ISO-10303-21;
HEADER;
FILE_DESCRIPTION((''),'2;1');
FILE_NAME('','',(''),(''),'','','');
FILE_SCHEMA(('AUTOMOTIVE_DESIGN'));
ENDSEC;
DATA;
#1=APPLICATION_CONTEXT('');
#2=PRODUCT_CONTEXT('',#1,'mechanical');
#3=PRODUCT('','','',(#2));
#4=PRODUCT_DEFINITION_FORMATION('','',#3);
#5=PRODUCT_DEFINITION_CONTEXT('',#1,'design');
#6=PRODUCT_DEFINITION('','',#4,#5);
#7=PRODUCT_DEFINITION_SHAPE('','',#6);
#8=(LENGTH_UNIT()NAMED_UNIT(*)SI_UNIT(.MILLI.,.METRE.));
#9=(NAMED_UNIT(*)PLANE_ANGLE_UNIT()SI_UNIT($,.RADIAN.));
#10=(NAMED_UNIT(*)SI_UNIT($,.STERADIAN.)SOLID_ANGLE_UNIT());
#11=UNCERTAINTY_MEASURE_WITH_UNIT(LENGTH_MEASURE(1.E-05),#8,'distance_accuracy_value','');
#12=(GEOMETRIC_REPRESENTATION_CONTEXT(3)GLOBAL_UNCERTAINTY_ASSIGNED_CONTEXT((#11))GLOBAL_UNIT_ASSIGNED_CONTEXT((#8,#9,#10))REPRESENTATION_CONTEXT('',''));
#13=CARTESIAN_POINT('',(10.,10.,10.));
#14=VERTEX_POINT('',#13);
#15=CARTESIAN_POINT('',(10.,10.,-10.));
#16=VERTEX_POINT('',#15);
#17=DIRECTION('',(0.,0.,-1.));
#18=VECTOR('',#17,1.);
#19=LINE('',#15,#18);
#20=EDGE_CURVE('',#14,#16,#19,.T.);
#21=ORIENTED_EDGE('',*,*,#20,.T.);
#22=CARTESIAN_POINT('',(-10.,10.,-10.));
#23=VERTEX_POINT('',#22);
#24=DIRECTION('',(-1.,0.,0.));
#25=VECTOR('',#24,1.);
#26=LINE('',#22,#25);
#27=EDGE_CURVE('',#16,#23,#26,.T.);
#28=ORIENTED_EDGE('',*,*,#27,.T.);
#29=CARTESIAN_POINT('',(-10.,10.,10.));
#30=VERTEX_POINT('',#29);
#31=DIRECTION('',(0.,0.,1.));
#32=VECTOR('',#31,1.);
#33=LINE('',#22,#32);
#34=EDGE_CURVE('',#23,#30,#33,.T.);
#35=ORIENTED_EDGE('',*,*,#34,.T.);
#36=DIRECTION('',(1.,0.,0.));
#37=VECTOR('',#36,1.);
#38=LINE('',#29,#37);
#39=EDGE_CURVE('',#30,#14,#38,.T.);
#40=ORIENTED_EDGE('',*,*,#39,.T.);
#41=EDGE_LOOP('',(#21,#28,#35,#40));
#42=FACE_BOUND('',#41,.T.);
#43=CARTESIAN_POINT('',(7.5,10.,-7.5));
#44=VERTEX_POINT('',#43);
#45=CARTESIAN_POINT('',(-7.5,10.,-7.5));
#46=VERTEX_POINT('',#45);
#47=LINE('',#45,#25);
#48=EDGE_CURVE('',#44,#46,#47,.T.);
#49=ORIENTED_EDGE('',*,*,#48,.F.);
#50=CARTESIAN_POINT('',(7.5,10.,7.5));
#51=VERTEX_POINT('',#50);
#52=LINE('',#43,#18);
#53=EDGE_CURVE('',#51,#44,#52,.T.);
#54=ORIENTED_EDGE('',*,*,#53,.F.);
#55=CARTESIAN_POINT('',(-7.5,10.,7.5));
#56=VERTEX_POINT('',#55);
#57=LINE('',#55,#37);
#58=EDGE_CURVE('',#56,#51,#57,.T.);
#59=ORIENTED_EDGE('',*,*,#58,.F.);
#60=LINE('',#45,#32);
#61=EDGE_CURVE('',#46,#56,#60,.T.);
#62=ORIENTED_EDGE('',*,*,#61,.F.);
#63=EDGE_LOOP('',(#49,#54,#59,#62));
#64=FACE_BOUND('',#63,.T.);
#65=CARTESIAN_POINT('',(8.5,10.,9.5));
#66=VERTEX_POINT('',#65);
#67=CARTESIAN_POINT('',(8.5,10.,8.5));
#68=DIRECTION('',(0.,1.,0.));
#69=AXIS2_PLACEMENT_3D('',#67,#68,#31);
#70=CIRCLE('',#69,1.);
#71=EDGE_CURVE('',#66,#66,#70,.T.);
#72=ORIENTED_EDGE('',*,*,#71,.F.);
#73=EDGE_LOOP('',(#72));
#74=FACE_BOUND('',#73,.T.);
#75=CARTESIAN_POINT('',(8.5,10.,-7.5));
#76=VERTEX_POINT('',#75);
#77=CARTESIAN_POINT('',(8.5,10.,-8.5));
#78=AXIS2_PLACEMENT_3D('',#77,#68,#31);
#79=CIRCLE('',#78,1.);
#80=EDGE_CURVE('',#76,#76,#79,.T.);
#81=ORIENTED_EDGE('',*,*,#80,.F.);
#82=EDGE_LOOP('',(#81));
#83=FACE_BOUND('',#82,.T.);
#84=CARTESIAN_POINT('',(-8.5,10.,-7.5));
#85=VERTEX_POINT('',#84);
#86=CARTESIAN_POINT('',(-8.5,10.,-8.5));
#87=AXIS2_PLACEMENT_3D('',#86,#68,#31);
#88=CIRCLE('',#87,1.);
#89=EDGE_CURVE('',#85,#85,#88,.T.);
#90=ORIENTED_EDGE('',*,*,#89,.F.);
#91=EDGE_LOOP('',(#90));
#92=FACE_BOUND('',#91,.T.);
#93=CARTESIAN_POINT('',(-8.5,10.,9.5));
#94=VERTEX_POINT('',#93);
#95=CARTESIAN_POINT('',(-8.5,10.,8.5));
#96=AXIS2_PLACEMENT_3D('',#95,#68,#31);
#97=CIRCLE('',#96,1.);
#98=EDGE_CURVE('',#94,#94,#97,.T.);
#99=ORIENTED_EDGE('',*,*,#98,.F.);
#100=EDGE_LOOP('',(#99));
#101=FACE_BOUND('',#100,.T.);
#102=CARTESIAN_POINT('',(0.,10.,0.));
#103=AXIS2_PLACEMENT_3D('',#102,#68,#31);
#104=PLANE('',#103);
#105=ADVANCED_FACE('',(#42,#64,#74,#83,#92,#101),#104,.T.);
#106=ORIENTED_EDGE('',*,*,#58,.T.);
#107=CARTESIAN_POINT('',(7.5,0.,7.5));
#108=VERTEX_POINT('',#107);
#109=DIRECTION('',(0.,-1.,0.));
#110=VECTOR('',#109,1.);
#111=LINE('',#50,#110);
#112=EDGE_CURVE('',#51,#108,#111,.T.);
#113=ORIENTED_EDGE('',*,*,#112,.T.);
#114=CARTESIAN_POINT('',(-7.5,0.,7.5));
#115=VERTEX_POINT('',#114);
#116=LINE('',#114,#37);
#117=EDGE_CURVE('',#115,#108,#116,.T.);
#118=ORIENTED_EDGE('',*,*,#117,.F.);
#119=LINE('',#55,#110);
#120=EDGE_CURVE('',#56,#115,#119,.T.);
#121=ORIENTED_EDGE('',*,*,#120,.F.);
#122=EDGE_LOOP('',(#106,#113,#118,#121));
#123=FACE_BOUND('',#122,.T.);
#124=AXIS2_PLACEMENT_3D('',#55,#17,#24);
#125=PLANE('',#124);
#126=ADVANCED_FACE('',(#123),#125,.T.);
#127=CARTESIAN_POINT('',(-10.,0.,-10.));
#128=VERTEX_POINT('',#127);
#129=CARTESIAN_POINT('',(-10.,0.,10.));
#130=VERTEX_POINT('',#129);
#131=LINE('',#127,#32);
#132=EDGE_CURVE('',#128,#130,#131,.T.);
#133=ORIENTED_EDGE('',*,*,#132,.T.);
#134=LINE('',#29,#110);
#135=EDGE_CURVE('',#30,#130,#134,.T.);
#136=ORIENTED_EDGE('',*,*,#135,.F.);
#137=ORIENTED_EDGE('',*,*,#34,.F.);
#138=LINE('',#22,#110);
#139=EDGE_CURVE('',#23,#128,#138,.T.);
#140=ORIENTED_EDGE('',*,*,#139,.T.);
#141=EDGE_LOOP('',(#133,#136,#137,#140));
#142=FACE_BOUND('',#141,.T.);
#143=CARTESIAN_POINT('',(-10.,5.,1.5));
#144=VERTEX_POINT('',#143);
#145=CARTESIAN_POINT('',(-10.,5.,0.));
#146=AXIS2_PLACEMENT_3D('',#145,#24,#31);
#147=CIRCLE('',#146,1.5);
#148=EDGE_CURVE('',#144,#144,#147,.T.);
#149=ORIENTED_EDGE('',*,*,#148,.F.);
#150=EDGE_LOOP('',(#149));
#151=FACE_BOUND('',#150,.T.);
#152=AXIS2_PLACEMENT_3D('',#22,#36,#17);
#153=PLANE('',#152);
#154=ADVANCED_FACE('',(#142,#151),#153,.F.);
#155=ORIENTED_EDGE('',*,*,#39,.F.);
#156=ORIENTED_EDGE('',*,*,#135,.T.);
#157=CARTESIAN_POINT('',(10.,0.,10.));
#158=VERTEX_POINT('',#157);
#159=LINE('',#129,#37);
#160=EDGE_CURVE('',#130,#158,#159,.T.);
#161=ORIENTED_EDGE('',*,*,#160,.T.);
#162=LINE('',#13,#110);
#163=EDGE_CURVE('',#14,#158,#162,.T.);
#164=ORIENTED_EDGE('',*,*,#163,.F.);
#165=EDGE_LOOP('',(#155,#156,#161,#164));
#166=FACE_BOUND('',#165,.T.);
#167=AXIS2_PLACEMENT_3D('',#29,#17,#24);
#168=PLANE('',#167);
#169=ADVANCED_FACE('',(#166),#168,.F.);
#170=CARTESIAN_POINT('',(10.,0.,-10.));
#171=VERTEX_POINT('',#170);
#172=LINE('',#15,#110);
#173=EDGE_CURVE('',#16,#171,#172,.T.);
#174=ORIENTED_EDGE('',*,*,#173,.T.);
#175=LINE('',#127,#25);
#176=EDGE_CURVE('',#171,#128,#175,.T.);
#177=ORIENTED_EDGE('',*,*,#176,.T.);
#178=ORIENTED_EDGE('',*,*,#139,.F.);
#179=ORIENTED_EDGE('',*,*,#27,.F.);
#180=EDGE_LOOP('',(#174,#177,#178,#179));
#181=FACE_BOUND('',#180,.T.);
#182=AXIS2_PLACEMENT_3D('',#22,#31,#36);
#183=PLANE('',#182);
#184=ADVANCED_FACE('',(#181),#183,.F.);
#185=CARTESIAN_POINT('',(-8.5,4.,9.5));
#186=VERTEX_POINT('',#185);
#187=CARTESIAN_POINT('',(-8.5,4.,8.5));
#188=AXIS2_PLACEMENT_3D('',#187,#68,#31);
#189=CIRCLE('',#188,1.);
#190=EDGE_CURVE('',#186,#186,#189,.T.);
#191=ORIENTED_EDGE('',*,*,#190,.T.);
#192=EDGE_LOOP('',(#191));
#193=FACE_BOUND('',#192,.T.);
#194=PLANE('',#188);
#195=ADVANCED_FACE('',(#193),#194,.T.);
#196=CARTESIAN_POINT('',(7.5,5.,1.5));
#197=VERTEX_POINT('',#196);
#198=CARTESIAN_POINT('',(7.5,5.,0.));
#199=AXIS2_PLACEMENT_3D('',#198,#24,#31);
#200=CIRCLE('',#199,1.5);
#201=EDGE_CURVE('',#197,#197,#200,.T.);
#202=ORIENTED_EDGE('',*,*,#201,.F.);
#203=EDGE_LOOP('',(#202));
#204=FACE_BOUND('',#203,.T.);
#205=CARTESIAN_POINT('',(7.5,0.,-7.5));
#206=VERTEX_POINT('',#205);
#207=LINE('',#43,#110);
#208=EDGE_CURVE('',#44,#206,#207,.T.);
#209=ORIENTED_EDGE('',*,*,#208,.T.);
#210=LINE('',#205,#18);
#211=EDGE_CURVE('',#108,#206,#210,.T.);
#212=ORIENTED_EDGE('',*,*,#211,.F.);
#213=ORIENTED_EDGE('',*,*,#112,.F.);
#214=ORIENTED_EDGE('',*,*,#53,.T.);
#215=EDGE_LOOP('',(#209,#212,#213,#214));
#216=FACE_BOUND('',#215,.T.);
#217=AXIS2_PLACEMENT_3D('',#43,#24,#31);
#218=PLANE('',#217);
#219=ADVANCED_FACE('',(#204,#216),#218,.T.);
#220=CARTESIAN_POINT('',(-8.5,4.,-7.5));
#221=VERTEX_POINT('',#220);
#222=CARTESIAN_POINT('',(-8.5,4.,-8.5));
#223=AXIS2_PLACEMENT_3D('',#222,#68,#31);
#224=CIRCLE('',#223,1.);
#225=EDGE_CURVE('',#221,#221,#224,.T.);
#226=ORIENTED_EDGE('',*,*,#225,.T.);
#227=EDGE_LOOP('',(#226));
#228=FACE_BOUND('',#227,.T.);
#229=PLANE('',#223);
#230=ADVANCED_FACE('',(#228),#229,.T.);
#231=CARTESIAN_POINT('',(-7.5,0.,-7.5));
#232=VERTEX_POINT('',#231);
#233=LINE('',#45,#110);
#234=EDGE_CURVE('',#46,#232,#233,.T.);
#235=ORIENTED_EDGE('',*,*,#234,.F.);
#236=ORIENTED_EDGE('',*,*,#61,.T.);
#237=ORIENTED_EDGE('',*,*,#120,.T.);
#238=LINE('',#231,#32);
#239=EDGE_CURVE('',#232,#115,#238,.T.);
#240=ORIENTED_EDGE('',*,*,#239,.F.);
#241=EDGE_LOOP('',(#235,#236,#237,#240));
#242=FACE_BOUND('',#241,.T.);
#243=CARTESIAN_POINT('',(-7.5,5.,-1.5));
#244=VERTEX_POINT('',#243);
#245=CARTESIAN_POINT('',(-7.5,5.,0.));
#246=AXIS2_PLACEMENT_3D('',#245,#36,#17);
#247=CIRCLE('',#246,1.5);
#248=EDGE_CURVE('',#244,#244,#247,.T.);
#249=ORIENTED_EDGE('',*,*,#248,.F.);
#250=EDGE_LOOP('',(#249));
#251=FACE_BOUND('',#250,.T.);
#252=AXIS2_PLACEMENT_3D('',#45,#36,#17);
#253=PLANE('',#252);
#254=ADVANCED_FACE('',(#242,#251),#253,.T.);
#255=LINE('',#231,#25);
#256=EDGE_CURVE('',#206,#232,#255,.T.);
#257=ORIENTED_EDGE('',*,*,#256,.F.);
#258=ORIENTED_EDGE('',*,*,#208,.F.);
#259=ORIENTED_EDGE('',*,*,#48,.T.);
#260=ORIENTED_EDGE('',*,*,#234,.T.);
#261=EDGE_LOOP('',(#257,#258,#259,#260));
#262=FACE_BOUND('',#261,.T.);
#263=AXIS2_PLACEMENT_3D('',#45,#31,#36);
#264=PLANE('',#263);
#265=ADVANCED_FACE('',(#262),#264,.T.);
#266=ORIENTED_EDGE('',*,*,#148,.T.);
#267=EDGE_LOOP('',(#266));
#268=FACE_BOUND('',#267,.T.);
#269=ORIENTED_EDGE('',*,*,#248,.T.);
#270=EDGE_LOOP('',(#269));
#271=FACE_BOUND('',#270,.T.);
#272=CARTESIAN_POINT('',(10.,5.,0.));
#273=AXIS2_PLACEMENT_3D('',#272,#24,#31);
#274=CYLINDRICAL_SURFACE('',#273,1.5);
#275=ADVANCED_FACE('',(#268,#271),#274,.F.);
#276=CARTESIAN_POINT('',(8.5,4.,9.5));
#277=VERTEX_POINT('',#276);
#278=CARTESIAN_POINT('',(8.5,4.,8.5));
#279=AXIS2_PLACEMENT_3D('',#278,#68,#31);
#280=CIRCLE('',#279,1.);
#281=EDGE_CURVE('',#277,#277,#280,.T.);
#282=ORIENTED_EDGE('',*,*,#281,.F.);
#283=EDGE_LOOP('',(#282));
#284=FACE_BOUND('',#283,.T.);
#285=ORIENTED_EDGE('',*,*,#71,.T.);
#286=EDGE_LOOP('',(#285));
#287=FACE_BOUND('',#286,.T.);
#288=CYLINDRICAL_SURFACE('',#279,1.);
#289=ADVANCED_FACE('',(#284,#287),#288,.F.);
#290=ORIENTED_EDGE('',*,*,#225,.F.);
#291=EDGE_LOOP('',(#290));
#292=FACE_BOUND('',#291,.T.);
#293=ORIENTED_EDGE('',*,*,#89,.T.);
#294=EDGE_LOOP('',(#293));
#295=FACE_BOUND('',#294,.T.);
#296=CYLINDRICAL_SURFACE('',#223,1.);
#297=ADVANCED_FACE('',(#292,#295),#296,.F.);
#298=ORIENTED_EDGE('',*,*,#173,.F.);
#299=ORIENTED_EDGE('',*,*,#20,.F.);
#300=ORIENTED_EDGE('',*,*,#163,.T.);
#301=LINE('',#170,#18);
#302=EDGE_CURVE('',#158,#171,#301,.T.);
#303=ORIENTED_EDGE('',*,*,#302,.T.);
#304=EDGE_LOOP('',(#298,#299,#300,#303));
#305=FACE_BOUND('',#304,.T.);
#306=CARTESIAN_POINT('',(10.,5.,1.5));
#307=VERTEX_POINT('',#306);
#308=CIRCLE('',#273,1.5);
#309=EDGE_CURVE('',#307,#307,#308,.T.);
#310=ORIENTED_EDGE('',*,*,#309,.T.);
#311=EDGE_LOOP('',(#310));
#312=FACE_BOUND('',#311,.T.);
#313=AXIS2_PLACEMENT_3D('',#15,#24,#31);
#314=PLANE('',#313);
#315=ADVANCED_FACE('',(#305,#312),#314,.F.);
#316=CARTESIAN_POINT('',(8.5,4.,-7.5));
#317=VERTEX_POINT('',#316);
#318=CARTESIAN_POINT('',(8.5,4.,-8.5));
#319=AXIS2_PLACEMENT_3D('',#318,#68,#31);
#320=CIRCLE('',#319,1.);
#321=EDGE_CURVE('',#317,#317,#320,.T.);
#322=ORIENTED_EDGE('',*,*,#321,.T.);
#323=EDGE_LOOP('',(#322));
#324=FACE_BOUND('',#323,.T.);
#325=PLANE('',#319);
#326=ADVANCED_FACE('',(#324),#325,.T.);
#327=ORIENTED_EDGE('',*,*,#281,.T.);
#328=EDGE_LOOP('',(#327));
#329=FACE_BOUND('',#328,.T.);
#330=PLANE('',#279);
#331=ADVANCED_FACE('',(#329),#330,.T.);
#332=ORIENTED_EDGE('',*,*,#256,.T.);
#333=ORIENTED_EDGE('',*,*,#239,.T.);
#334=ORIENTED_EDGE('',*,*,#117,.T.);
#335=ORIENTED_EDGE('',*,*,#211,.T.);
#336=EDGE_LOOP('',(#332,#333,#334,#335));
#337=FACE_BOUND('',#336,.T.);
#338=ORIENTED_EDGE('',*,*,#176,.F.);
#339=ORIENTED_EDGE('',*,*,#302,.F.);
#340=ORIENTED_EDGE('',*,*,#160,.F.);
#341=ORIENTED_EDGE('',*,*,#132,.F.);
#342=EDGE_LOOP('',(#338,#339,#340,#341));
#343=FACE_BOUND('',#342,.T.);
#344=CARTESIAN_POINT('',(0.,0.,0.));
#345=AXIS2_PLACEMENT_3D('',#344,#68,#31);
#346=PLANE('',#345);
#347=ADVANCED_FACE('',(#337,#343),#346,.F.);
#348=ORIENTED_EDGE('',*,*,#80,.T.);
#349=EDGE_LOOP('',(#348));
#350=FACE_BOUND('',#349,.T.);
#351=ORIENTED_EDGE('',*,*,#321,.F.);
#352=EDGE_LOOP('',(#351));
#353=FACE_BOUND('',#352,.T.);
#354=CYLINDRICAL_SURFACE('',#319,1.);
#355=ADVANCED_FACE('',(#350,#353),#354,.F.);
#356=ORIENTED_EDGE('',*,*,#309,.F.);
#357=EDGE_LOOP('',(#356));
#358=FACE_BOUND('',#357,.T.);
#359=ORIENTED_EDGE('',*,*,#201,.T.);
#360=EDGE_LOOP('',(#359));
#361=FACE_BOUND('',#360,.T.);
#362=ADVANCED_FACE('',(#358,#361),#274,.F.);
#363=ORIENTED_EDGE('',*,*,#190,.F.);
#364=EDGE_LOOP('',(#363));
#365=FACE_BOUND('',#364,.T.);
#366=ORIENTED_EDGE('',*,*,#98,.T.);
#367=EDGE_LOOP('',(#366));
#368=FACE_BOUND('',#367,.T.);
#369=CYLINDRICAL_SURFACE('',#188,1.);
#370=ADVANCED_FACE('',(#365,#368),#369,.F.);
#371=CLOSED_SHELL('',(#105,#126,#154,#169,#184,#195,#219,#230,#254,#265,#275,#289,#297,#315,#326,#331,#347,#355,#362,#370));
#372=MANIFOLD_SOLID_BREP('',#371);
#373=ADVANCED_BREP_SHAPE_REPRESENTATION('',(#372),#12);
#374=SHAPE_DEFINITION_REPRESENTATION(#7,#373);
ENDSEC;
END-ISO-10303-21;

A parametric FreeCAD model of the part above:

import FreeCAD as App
import Part
import Sketcher


def add_polygon(sketch, points):
    """Adds a closed chain of lines whose ends are joined by coincident constraints."""
    first, n = sketch.GeometryCount, len(points)
    for a, b in zip(points, points[1:] + points[:1]):
        sketch.addGeometry(Part.LineSegment(App.Vector(*a, 0), App.Vector(*b, 0)), False)
    for i in range(n):
        sketch.addConstraint(Sketcher.Constraint("Coincident", first + i, 2, first + (i + 1) % n, 1))

doc = App.newDocument("Part")
body = doc.addObject("PartDesign::Body", "Body")

# Sketch on XZ plane
sketch1 = body.newObject("Sketcher::SketchObject", "Sketch")
sketch1.AttachmentSupport = (doc.getObject("XZ_Plane"), [""])
sketch1.MapMode = "FlatFace"
add_polygon(sketch1, [(-10, -10), (-10, 10), (10, 10), (10, -10)])  # lines 0-3
add_polygon(sketch1, [(8, 8), (-8, 8), (-8, -8), (8, -8)])  # lines 4-7
sketch1.addConstraint(Sketcher.Constraint("Vertical", 0))
sketch1.addConstraint(Sketcher.Constraint("Horizontal", 1))
sketch1.addConstraint(Sketcher.Constraint("Vertical", 2))
sketch1.addConstraint(Sketcher.Constraint("Horizontal", 3))
sketch1.addConstraint(Sketcher.Constraint("Horizontal", 4))
sketch1.addConstraint(Sketcher.Constraint("Vertical", 5))
sketch1.addConstraint(Sketcher.Constraint("Horizontal", 6))
sketch1.addConstraint(Sketcher.Constraint("Vertical", 7))
sketch1.addConstraint(Sketcher.Constraint("Symmetric", 0, 2, 2, 2, -1, 1))
sketch1.addConstraint(Sketcher.Constraint("Symmetric", 4, 2, 6, 2, -1, 1))
sketch1.addConstraint(Sketcher.Constraint("Equal", 3, 0))
sketch1.addConstraint(Sketcher.Constraint("Equal", 6, 5))
sketch1.addConstraint(Sketcher.Constraint("DistanceX", 1, 1, 1, 2, 20.0))
sketch1.addConstraint(Sketcher.Constraint("DistanceX", 4, 2, 4, 1, 15.0))
pad1 = body.newObject("PartDesign::Pad", "Pad")
pad1.Profile = sketch1
pad1.Length = 10
pad1.Reversed = True

# Sketch on YZ plane
sketch2 = body.newObject("Sketcher::SketchObject", "Sketch001")
sketch2.AttachmentSupport = (doc.getObject("YZ_Plane"), [""])
sketch2.MapMode = "FlatFace"
sketch2.AttachmentOffset = App.Placement(App.Vector(0, 0, -10), App.Rotation())
sketch2.addGeometry(Part.Circle(App.Vector(5, 0, 0), App.Vector(0, 0, 1), 1.5), False)
sketch2.addConstraint(Sketcher.Constraint("PointOnObject", 0, 3, -1))
sketch2.addConstraint(Sketcher.Constraint("Diameter", 0, 3.0))
sketch2.addConstraint(Sketcher.Constraint("DistanceX", -1, 1, 0, 3, 5.0))
pocket1 = body.newObject("PartDesign::Pocket", "Pocket")
pocket1.Profile = sketch2
pocket1.Type = "ThroughAll"
pocket1.Reversed = True

# Sketch on XZ plane
sketch3 = body.newObject("Sketcher::SketchObject", "Sketch002")
sketch3.AttachmentSupport = (doc.getObject("XZ_Plane"), [""])
sketch3.MapMode = "FlatFace"
sketch3.AttachmentOffset = App.Placement(App.Vector(0, 0, -10), App.Rotation())
sketch3.addGeometry(Part.Circle(App.Vector(-8.5, -8.5, 0), App.Vector(0, 0, 1), 1), False)
sketch3.addGeometry(Part.Circle(App.Vector(8.5, -8.5, 0), App.Vector(0, 0, 1), 1), False)
sketch3.addGeometry(Part.Circle(App.Vector(8.5, 8.5, 0), App.Vector(0, 0, 1), 1), False)
sketch3.addGeometry(Part.Circle(App.Vector(-8.5, 8.5, 0), App.Vector(0, 0, 1), 1), False)
sketch3.addConstraint(Sketcher.Constraint("Equal", 0, 1))
sketch3.addConstraint(Sketcher.Constraint("Equal", 1, 2))
sketch3.addConstraint(Sketcher.Constraint("Equal", 2, 3))
sketch3.addConstraint(Sketcher.Constraint("Symmetric", 0, 3, 2, 3, -1, 1))
sketch3.addConstraint(Sketcher.Constraint("Symmetric", 1, 3, 3, 3, -1, 1))
sketch3.addConstraint(Sketcher.Constraint("Symmetric", 0, 3, 1, 3, -2))
sketch3.addConstraint(Sketcher.Constraint("Diameter", 0, 2.0))
sketch3.addConstraint(Sketcher.Constraint("DistanceX", 0, 3, 1, 3, 17.0))
sketch3.addConstraint(Sketcher.Constraint("DistanceY", 1, 3, 2, 3, 17.0))
pocket2 = body.newObject("PartDesign::Pocket", "Pocket001")
pocket2.Profile = sketch3
pocket2.Length = 6
pocket2.Reversed = True

doc.recompute()
